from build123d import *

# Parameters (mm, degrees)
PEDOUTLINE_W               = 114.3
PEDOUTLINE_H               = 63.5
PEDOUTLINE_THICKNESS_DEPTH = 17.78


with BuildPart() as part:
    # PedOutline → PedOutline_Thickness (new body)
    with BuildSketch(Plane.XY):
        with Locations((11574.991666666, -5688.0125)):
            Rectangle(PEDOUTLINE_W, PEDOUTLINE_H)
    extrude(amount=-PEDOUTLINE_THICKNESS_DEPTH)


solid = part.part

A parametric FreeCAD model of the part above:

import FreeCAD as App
import Part
import Sketcher

V = App.Vector
Q = App.Units.Quantity

doc = App.newDocument("Part")
body = doc.addObject("PartDesign::Body", "Body")

# Sketch on XY plane
sketch1 = body.newObject("Sketcher::SketchObject", "Sketch")
sketch1.AttachmentSupport = (doc.getObject("XY_Plane"), [""])
sketch1.MapMode = "FlatFace"
sketch1.addGeometry(Part.LineSegment(V(11517.841667, -5656.2625, 0), V(11517.841667, -5719.7625, 0)), False)
sketch1.addGeometry(Part.LineSegment(V(11517.841667, -5719.7625, 0), V(11632.141667, -5719.7625, 0)), False)
sketch1.addGeometry(Part.LineSegment(V(11632.141667, -5719.7625, 0), V(11632.141667, -5656.2625, 0)), False)
sketch1.addGeometry(Part.LineSegment(V(11632.141667, -5656.2625, 0), V(11517.841667, -5656.2625, 0)), False)
sketch1.addConstraint(Sketcher.Constraint("Coincident", 0, 2, 1, 1))
sketch1.addConstraint(Sketcher.Constraint("Coincident", 1, 2, 2, 1))
sketch1.addConstraint(Sketcher.Constraint("Coincident", 2, 2, 3, 1))
sketch1.addConstraint(Sketcher.Constraint("Coincident", 3, 2, 0, 1))
sketch1.addConstraint(Sketcher.Constraint("Vertical", 0))
sketch1.addConstraint(Sketcher.Constraint("Horizontal", 1))
sketch1.addConstraint(Sketcher.Constraint("Vertical", 2))
sketch1.addConstraint(Sketcher.Constraint("Horizontal", 3))
sketch1.addConstraint(Sketcher.Constraint("DistanceX", 1, 1, 1, 2, Q("4.5 in")))
sketch1.addConstraint(Sketcher.Constraint("DistanceY", 0, 2, 0, 1, Q("2.5 in")))
sketch1.addConstraint(Sketcher.Constraint("DistanceY", 0, 2, -1, 1, Q("225.1875 in")))
sketch1.addConstraint(Sketcher.Constraint("DistanceX", -1, 1, 0, 2, 11517.841667))
pad1 = body.newObject("PartDesign::Pad", "Pad")
pad1.Profile = sketch1
pad1.Length = Q("0.7 in")
pad1.Reversed = True

doc.recompute()
